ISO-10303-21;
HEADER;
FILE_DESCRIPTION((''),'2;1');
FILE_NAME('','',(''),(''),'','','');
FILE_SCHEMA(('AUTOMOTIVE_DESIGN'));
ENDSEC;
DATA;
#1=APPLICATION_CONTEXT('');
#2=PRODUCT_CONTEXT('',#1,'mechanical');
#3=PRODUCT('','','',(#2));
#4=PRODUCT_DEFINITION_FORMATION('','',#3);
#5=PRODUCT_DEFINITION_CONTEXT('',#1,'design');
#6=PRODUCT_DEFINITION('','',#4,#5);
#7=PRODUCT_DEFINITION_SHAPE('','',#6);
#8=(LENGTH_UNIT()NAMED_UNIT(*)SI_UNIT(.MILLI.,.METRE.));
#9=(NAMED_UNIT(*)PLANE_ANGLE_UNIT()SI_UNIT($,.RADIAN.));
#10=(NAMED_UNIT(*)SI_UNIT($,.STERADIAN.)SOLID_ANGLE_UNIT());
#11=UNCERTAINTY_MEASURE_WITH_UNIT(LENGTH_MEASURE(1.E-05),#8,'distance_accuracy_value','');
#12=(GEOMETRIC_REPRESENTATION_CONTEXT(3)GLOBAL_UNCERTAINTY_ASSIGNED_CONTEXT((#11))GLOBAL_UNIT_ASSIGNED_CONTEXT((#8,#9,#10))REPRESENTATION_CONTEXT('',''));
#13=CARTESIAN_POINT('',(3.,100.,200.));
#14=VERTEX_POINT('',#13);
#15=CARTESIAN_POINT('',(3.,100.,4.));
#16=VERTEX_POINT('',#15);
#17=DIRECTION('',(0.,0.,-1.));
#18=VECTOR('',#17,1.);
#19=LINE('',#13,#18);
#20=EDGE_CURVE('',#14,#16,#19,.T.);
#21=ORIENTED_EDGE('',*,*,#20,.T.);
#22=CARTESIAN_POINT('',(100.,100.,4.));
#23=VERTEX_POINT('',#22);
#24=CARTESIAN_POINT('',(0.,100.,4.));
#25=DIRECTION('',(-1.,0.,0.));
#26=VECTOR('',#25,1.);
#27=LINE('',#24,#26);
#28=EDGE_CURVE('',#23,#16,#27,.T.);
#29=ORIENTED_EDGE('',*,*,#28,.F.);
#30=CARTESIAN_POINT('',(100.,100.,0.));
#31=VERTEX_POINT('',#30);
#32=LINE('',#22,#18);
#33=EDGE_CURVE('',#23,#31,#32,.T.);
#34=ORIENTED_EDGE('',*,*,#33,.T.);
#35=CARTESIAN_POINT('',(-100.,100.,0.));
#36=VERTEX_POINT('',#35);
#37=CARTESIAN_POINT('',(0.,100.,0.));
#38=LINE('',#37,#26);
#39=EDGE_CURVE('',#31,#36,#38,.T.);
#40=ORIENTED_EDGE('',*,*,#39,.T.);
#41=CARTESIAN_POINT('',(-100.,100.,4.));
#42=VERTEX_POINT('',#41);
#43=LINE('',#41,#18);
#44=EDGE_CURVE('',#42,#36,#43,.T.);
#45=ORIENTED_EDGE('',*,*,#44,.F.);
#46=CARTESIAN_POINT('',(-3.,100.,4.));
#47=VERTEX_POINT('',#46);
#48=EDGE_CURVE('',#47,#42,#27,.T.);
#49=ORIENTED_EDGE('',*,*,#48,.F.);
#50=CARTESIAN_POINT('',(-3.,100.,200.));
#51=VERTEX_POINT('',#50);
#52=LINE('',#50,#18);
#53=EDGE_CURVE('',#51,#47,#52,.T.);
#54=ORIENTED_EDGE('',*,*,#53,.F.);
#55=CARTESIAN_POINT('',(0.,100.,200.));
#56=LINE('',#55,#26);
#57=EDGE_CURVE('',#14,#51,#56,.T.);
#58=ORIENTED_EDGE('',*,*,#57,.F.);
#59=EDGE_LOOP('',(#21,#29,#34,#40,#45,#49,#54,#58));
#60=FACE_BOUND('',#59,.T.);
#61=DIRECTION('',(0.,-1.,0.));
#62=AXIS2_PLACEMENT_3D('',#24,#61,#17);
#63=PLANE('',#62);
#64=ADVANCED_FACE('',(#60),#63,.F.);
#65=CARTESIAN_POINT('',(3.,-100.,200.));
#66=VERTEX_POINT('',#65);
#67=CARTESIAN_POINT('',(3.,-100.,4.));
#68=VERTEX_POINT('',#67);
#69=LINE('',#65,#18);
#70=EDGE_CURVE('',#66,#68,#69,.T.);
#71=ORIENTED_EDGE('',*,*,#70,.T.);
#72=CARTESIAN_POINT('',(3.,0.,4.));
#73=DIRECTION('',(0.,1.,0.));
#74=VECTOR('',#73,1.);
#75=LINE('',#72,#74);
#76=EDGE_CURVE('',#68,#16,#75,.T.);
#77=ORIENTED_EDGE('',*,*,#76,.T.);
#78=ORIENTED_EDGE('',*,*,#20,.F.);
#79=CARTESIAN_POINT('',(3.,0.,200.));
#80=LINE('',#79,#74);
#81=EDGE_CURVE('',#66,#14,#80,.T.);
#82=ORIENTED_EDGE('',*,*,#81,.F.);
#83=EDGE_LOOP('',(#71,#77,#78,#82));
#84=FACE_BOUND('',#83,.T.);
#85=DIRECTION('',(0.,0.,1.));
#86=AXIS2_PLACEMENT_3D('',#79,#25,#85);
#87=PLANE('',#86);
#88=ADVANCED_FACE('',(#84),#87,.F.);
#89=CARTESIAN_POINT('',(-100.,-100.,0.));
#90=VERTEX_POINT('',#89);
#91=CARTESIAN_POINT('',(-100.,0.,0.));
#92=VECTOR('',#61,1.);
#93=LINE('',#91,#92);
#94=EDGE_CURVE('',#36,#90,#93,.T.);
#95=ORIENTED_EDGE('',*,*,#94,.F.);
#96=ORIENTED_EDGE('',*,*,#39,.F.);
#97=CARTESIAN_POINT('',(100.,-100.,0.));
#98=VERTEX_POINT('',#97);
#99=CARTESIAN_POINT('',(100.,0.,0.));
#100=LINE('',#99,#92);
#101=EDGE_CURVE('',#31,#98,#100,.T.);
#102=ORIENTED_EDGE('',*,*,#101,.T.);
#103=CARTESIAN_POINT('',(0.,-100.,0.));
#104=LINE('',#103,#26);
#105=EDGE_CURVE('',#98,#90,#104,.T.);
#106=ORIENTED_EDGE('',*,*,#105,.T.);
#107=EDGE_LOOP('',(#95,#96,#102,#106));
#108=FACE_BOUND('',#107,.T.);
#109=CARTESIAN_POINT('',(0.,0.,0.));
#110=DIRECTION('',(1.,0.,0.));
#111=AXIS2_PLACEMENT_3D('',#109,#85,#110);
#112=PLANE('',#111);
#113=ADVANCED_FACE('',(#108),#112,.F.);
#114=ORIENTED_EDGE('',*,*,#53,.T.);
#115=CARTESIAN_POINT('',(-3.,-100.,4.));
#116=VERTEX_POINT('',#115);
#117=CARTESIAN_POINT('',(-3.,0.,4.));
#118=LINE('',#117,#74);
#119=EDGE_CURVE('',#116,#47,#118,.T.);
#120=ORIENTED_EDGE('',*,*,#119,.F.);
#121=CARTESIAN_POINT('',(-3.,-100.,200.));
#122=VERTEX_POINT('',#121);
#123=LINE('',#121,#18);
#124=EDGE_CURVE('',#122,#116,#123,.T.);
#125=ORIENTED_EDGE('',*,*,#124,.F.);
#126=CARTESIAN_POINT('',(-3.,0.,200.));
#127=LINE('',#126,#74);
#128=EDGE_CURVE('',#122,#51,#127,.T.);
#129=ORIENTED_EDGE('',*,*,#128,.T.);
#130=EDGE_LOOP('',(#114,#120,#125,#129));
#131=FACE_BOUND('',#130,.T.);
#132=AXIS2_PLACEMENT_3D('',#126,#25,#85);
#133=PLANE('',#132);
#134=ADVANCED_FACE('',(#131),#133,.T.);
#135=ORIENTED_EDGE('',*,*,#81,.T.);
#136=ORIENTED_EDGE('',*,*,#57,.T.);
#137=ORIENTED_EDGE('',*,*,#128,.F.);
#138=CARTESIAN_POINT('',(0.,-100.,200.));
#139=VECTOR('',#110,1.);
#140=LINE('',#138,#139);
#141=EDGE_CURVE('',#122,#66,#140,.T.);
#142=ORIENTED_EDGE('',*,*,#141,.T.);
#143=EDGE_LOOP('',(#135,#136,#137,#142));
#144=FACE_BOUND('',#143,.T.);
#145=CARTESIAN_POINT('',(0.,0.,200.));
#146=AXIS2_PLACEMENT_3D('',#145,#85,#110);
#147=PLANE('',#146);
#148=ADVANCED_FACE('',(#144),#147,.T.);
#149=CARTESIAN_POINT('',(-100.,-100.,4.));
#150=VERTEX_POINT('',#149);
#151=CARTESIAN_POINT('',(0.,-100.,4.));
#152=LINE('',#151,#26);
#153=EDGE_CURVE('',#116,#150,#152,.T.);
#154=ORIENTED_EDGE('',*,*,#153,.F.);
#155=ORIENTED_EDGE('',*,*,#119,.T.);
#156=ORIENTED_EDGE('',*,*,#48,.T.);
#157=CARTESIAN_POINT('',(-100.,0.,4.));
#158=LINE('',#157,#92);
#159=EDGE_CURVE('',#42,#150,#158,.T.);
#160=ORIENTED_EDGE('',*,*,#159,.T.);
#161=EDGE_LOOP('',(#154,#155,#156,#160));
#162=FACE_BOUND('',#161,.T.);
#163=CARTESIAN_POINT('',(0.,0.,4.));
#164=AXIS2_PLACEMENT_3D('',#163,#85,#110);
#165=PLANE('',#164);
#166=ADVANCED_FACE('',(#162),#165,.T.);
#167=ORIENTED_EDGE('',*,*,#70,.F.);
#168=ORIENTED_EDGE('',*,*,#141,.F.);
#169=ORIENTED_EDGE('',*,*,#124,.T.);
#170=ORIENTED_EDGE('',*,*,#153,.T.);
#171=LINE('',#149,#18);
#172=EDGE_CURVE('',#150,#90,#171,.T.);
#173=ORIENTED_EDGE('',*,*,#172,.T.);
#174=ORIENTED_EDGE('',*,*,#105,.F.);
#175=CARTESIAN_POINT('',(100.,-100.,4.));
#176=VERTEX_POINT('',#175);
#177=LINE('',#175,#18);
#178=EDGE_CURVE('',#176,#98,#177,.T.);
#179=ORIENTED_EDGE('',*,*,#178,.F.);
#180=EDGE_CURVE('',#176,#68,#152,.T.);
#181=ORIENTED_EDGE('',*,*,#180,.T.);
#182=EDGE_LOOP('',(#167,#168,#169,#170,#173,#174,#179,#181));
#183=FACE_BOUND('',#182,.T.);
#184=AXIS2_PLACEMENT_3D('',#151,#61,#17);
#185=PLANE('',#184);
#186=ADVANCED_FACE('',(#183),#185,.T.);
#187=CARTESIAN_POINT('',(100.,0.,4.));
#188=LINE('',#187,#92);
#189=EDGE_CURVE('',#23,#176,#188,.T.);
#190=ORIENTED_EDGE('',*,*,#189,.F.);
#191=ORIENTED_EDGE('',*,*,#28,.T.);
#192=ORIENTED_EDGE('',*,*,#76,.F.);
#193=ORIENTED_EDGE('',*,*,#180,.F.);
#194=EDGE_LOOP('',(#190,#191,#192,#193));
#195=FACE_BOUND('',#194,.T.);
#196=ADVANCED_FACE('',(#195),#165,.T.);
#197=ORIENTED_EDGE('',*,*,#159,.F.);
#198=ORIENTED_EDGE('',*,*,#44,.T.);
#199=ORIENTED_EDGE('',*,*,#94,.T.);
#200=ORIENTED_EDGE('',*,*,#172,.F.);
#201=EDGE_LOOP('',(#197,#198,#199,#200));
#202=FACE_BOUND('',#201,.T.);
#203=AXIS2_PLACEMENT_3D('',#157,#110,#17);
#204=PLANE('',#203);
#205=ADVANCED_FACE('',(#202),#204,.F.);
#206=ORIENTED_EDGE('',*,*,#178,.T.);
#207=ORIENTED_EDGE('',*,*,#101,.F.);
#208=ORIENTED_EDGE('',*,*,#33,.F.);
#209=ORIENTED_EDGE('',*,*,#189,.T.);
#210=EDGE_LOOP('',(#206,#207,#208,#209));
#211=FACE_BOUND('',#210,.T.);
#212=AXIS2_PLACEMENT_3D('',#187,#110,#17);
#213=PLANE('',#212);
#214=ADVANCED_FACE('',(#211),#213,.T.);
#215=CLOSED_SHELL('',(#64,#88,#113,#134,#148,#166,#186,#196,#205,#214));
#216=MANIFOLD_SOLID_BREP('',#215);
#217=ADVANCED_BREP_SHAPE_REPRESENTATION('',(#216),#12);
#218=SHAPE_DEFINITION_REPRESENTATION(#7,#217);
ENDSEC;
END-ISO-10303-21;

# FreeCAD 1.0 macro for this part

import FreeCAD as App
import Part
import Sketcher
Q = App.Units.Quantity


def add_polygon(sketch, points):
    """Adds a closed chain of lines whose ends are joined by coincident constraints."""
    first, n = sketch.GeometryCount, len(points)
    for a, b in zip(points, points[1:] + points[:1]):
        sketch.addGeometry(Part.LineSegment(App.Vector(*a, 0), App.Vector(*b, 0)), False)
    for i in range(n):
        sketch.addConstraint(Sketcher.Constraint("Coincident", first + i, 2, first + (i + 1) % n, 1))

doc = App.newDocument("Part")
body = doc.addObject("PartDesign::Body", "Body")

sketch1 = body.newObject("Sketcher::SketchObject", "Sketch")
sketch1.AttachmentSupport = (doc.getObject("XY_Plane"), [""])
sketch1.MapMode = "FlatFace"
add_polygon(sketch1, [(-100, 100), (-100, -100), (100, -100), (100, 100)])
sketch1.addConstraint(Sketcher.Constraint("Vertical", 0))
sketch1.addConstraint(Sketcher.Constraint("Horizontal", 1))
sketch1.addConstraint(Sketcher.Constraint("Vertical", 2))
sketch1.addConstraint(Sketcher.Constraint("Horizontal", 3))
sketch1.addConstraint(Sketcher.Constraint("Symmetric", 0, 2, 2, 2, -1, 1))
sketch1.addConstraint(Sketcher.Constraint("Equal", 3, 0))
sketch1.addConstraint(Sketcher.Constraint("DistanceX", 1, 1, 1, 2, Q("200 mm")))
pad1 = body.newObject("PartDesign::Pad", "Pad")
pad1.Profile = sketch1
pad1.Length = 4

sketch2 = body.newObject("Sketcher::SketchObject", "Sketch001")
sketch2.AttachmentSupport = (doc.getObject("XY_Plane"), [""])
sketch2.MapMode = "FlatFace"
sketch2.AttachmentOffset = App.Placement(App.Vector(0, 0, 4), App.Rotation())
add_polygon(sketch2, [(-3, 100), (-3, -100), (3, -100), (3, 100)])
sketch2.addConstraint(Sketcher.Constraint("Vertical", 0))
sketch2.addConstraint(Sketcher.Constraint("Horizontal", 1))
sketch2.addConstraint(Sketcher.Constraint("Vertical", 2))
sketch2.addConstraint(Sketcher.Constraint("Horizontal", 3))
sketch2.addConstraint(Sketcher.Constraint("Symmetric", 0, 2, 2, 2, -1, 1))
sketch2.addConstraint(Sketcher.Constraint("DistanceX", 1, 1, 1, 2, Q("6 mm")))
sketch2.addConstraint(Sketcher.Constraint("DistanceY", 0, 2, 0, 1, Q("200 mm")))
pad2 = body.newObject("PartDesign::Pad", "Pad001")
pad2.Profile = sketch2
pad2.Length = 196

doc.recompute()
